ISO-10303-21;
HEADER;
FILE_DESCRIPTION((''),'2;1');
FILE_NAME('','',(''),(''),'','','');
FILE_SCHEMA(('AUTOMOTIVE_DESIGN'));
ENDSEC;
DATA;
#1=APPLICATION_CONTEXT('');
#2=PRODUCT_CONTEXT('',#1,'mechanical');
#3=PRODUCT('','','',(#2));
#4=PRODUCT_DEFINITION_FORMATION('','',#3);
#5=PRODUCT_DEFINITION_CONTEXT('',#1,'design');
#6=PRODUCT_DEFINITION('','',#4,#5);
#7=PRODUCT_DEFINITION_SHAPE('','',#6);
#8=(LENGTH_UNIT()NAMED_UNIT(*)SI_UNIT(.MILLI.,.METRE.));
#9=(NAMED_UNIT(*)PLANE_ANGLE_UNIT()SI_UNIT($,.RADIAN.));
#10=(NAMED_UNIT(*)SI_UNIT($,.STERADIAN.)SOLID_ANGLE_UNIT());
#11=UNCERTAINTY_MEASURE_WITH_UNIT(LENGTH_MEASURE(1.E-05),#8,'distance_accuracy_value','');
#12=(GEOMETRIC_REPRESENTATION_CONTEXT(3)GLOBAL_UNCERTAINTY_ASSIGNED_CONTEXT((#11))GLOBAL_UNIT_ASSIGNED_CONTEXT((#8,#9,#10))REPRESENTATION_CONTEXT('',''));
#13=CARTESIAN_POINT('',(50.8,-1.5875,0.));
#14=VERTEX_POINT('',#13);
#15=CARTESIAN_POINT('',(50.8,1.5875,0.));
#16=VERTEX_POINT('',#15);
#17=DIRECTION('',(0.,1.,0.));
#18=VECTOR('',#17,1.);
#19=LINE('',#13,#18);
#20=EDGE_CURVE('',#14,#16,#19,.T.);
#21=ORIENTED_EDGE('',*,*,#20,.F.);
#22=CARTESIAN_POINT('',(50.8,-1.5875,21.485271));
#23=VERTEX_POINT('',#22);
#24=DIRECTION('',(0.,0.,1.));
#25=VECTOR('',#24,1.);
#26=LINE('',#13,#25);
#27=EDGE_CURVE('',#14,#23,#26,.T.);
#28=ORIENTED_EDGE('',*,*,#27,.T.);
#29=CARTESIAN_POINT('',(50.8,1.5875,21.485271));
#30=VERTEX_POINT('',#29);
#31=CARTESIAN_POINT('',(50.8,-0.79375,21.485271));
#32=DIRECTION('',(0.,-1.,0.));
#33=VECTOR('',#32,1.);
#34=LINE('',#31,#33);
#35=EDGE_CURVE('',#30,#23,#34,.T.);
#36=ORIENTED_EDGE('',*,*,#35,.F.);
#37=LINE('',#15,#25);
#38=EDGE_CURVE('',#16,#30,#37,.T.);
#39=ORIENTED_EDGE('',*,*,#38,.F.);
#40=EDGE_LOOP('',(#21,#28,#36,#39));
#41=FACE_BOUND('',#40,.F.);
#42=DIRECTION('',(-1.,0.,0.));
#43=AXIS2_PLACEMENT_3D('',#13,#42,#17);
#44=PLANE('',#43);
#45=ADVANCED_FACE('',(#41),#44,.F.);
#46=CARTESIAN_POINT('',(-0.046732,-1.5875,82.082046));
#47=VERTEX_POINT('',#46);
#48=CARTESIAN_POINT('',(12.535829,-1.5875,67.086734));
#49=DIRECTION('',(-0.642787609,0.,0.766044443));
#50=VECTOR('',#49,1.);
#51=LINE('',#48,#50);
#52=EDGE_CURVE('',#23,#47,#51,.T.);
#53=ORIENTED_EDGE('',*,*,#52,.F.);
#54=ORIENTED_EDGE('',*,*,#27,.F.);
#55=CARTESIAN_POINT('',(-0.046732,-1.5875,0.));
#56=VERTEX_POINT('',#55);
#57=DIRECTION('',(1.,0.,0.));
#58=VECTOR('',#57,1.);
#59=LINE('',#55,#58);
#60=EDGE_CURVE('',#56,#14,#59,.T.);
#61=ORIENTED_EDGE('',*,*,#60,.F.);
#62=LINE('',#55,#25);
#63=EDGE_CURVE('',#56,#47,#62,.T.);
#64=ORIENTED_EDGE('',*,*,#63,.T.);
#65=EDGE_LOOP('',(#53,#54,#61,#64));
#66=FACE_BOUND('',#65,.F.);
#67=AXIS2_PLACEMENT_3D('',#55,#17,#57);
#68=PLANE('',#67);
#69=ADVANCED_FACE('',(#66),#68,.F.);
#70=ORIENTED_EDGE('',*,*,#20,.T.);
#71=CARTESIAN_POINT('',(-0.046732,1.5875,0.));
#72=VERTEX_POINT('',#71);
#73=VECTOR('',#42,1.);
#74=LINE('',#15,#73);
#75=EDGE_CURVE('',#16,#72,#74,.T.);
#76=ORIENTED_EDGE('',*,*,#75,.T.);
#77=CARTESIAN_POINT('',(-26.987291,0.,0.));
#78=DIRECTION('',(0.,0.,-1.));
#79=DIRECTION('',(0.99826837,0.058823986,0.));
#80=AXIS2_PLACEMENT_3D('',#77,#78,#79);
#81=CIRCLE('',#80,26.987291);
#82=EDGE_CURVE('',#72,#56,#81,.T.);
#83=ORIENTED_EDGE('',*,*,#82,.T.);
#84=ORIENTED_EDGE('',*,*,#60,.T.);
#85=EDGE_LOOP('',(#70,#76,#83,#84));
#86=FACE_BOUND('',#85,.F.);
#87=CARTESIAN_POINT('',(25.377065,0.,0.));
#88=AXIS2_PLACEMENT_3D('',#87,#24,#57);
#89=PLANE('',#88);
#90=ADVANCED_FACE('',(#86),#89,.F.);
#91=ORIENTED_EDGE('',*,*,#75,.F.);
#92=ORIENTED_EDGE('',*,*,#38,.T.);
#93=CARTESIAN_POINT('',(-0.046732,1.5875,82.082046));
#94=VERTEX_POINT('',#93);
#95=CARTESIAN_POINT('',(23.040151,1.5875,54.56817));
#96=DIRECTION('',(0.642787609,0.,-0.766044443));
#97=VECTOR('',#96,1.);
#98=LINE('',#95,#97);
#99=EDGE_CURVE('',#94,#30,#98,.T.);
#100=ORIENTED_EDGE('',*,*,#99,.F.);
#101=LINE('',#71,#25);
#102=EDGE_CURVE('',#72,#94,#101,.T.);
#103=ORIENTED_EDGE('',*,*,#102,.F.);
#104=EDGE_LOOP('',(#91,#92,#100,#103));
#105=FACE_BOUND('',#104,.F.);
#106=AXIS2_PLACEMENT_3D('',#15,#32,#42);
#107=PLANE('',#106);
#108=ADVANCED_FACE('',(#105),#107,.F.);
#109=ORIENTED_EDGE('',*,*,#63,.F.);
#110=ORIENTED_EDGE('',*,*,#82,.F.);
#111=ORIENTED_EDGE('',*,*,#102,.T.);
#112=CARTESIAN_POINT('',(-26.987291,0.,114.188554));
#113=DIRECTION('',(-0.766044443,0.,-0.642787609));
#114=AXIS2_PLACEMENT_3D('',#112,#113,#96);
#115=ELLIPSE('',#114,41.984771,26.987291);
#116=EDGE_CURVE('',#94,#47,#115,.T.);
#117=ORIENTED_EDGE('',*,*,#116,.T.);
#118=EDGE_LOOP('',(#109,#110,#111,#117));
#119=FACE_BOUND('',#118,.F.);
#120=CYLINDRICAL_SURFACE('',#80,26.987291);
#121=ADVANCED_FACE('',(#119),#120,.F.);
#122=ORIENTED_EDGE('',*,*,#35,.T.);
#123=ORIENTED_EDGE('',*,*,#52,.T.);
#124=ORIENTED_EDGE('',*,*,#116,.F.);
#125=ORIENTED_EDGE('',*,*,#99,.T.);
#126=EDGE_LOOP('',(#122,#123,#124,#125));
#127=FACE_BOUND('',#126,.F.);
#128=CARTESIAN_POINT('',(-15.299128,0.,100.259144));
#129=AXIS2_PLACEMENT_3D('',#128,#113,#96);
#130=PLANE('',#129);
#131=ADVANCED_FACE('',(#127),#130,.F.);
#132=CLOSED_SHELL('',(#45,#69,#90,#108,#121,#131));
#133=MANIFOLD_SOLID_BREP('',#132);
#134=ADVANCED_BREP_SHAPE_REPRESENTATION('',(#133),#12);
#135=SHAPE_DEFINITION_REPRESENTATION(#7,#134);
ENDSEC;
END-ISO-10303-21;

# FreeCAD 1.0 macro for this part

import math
import FreeCAD as App
import Part
import Sketcher
Q = App.Units.Quantity

doc = App.newDocument("Part")
params = doc.addObject("Spreadsheet::Sheet", "Params")
for row, (alias, value) in enumerate([
    ("sketch1_height", "0.125 in"),
    ("pad1_length", "3.5 in"),
    ("pocket1_length", "1 in"),
], start=1):
    params.set(f"A{row}", alias)
    params.set(f"B{row}", "=" + value)
    params.setAlias(f"B{row}", alias)

body = doc.addObject("PartDesign::Body", "Body")

sketch1 = body.newObject("Sketcher::SketchObject", "Sketch")
sketch1.AttachmentSupport = (doc.getObject("XY_Plane"), [""])
sketch1.MapMode = "FlatFace"
sketch1.addGeometry([
    Part.ArcOfCircle(Part.Circle(App.Vector(-26.987291, 0, 0), App.Vector(0, 0, 1), 26.987291), math.radians(-3.372313), math.radians(3.372313)),
    Part.LineSegment(App.Vector(-0.046732, -1.5875, 0), App.Vector(50.8, -1.5875, 0)),
    Part.LineSegment(App.Vector(50.8, -1.5875, 0), App.Vector(50.8, 1.5875, 0)),
    Part.LineSegment(App.Vector(50.8, 1.5875, 0), App.Vector(-0.046732, 1.5875, 0)),
], False)
sketch1.addConstraint([
    Sketcher.Constraint("Coincident", 0, 1, 1, 1),
    Sketcher.Constraint("Coincident", 1, 2, 2, 1),
    Sketcher.Constraint("Coincident", 2, 2, 3, 1),
    Sketcher.Constraint("Coincident", 3, 2, 0, 2),
    Sketcher.Constraint("Horizontal", 1),
    Sketcher.Constraint("Vertical", 2),
    Sketcher.Constraint("Horizontal", 3),
    Sketcher.Constraint("Symmetric", 0, 1, 3, 2, -1),
    Sketcher.Constraint("DistanceX", -1, 1, 1, 2, Q("2 in")),
    Sketcher.Constraint("DistanceY", 2, 1, 2, 2, Q("0.125 in")),
    Sketcher.Constraint("Radius", 0, Q("26.987291 mm")),
    Sketcher.Constraint("DistanceX", 1, 1, 1, 2, Q("50.846732 mm")),
])
sketch1.setExpression("Constraints[9]", "Params.sketch1_height")
pad1 = body.newObject("PartDesign::Pad", "Pad")
pad1.Profile = sketch1
pad1.setExpression("Length", "Params.pad1_length")

sketch2 = body.newObject("Sketcher::SketchObject", "Sketch001")
sketch2.AttachmentSupport = (doc.getObject("XZ_Plane"), [""])
sketch2.MapMode = "FlatFace"
sketch2.addGeometry([
    Part.LineSegment(App.Vector(-15.299128, 100.259144, 0), App.Vector(63.5, 6.35, 0)),
    Part.LineSegment(App.Vector(63.5, 6.35, 0), App.Vector(63.5, 100.259144, 0)),
    Part.LineSegment(App.Vector(63.5, 100.259144, 0), App.Vector(-15.299128, 100.259144, 0)),
], False)
sketch2.addConstraint([
    Sketcher.Constraint("Coincident", 0, 2, 1, 1),
    Sketcher.Constraint("Coincident", 1, 2, 2, 1),
    Sketcher.Constraint("Coincident", 2, 2, 0, 1),
    Sketcher.Constraint("Vertical", 1),
    Sketcher.Constraint("Horizontal", 2),
    Sketcher.Constraint("Angle", 0, Q("-50 deg")),
    Sketcher.Constraint("DistanceX", -1, 1, 0, 2, Q("2.5 in")),
    Sketcher.Constraint("DistanceY", -1, 1, 0, 2, Q("0.25 in")),
    Sketcher.Constraint("Distance", 0, Q("122.589681 mm")),
])
pocket1 = body.newObject("PartDesign::Pocket", "Pocket")
pocket1.Profile = sketch2
pocket1.setExpression("Length", "Params.pocket1_length")
pocket1.Midplane = True

doc.recompute()
